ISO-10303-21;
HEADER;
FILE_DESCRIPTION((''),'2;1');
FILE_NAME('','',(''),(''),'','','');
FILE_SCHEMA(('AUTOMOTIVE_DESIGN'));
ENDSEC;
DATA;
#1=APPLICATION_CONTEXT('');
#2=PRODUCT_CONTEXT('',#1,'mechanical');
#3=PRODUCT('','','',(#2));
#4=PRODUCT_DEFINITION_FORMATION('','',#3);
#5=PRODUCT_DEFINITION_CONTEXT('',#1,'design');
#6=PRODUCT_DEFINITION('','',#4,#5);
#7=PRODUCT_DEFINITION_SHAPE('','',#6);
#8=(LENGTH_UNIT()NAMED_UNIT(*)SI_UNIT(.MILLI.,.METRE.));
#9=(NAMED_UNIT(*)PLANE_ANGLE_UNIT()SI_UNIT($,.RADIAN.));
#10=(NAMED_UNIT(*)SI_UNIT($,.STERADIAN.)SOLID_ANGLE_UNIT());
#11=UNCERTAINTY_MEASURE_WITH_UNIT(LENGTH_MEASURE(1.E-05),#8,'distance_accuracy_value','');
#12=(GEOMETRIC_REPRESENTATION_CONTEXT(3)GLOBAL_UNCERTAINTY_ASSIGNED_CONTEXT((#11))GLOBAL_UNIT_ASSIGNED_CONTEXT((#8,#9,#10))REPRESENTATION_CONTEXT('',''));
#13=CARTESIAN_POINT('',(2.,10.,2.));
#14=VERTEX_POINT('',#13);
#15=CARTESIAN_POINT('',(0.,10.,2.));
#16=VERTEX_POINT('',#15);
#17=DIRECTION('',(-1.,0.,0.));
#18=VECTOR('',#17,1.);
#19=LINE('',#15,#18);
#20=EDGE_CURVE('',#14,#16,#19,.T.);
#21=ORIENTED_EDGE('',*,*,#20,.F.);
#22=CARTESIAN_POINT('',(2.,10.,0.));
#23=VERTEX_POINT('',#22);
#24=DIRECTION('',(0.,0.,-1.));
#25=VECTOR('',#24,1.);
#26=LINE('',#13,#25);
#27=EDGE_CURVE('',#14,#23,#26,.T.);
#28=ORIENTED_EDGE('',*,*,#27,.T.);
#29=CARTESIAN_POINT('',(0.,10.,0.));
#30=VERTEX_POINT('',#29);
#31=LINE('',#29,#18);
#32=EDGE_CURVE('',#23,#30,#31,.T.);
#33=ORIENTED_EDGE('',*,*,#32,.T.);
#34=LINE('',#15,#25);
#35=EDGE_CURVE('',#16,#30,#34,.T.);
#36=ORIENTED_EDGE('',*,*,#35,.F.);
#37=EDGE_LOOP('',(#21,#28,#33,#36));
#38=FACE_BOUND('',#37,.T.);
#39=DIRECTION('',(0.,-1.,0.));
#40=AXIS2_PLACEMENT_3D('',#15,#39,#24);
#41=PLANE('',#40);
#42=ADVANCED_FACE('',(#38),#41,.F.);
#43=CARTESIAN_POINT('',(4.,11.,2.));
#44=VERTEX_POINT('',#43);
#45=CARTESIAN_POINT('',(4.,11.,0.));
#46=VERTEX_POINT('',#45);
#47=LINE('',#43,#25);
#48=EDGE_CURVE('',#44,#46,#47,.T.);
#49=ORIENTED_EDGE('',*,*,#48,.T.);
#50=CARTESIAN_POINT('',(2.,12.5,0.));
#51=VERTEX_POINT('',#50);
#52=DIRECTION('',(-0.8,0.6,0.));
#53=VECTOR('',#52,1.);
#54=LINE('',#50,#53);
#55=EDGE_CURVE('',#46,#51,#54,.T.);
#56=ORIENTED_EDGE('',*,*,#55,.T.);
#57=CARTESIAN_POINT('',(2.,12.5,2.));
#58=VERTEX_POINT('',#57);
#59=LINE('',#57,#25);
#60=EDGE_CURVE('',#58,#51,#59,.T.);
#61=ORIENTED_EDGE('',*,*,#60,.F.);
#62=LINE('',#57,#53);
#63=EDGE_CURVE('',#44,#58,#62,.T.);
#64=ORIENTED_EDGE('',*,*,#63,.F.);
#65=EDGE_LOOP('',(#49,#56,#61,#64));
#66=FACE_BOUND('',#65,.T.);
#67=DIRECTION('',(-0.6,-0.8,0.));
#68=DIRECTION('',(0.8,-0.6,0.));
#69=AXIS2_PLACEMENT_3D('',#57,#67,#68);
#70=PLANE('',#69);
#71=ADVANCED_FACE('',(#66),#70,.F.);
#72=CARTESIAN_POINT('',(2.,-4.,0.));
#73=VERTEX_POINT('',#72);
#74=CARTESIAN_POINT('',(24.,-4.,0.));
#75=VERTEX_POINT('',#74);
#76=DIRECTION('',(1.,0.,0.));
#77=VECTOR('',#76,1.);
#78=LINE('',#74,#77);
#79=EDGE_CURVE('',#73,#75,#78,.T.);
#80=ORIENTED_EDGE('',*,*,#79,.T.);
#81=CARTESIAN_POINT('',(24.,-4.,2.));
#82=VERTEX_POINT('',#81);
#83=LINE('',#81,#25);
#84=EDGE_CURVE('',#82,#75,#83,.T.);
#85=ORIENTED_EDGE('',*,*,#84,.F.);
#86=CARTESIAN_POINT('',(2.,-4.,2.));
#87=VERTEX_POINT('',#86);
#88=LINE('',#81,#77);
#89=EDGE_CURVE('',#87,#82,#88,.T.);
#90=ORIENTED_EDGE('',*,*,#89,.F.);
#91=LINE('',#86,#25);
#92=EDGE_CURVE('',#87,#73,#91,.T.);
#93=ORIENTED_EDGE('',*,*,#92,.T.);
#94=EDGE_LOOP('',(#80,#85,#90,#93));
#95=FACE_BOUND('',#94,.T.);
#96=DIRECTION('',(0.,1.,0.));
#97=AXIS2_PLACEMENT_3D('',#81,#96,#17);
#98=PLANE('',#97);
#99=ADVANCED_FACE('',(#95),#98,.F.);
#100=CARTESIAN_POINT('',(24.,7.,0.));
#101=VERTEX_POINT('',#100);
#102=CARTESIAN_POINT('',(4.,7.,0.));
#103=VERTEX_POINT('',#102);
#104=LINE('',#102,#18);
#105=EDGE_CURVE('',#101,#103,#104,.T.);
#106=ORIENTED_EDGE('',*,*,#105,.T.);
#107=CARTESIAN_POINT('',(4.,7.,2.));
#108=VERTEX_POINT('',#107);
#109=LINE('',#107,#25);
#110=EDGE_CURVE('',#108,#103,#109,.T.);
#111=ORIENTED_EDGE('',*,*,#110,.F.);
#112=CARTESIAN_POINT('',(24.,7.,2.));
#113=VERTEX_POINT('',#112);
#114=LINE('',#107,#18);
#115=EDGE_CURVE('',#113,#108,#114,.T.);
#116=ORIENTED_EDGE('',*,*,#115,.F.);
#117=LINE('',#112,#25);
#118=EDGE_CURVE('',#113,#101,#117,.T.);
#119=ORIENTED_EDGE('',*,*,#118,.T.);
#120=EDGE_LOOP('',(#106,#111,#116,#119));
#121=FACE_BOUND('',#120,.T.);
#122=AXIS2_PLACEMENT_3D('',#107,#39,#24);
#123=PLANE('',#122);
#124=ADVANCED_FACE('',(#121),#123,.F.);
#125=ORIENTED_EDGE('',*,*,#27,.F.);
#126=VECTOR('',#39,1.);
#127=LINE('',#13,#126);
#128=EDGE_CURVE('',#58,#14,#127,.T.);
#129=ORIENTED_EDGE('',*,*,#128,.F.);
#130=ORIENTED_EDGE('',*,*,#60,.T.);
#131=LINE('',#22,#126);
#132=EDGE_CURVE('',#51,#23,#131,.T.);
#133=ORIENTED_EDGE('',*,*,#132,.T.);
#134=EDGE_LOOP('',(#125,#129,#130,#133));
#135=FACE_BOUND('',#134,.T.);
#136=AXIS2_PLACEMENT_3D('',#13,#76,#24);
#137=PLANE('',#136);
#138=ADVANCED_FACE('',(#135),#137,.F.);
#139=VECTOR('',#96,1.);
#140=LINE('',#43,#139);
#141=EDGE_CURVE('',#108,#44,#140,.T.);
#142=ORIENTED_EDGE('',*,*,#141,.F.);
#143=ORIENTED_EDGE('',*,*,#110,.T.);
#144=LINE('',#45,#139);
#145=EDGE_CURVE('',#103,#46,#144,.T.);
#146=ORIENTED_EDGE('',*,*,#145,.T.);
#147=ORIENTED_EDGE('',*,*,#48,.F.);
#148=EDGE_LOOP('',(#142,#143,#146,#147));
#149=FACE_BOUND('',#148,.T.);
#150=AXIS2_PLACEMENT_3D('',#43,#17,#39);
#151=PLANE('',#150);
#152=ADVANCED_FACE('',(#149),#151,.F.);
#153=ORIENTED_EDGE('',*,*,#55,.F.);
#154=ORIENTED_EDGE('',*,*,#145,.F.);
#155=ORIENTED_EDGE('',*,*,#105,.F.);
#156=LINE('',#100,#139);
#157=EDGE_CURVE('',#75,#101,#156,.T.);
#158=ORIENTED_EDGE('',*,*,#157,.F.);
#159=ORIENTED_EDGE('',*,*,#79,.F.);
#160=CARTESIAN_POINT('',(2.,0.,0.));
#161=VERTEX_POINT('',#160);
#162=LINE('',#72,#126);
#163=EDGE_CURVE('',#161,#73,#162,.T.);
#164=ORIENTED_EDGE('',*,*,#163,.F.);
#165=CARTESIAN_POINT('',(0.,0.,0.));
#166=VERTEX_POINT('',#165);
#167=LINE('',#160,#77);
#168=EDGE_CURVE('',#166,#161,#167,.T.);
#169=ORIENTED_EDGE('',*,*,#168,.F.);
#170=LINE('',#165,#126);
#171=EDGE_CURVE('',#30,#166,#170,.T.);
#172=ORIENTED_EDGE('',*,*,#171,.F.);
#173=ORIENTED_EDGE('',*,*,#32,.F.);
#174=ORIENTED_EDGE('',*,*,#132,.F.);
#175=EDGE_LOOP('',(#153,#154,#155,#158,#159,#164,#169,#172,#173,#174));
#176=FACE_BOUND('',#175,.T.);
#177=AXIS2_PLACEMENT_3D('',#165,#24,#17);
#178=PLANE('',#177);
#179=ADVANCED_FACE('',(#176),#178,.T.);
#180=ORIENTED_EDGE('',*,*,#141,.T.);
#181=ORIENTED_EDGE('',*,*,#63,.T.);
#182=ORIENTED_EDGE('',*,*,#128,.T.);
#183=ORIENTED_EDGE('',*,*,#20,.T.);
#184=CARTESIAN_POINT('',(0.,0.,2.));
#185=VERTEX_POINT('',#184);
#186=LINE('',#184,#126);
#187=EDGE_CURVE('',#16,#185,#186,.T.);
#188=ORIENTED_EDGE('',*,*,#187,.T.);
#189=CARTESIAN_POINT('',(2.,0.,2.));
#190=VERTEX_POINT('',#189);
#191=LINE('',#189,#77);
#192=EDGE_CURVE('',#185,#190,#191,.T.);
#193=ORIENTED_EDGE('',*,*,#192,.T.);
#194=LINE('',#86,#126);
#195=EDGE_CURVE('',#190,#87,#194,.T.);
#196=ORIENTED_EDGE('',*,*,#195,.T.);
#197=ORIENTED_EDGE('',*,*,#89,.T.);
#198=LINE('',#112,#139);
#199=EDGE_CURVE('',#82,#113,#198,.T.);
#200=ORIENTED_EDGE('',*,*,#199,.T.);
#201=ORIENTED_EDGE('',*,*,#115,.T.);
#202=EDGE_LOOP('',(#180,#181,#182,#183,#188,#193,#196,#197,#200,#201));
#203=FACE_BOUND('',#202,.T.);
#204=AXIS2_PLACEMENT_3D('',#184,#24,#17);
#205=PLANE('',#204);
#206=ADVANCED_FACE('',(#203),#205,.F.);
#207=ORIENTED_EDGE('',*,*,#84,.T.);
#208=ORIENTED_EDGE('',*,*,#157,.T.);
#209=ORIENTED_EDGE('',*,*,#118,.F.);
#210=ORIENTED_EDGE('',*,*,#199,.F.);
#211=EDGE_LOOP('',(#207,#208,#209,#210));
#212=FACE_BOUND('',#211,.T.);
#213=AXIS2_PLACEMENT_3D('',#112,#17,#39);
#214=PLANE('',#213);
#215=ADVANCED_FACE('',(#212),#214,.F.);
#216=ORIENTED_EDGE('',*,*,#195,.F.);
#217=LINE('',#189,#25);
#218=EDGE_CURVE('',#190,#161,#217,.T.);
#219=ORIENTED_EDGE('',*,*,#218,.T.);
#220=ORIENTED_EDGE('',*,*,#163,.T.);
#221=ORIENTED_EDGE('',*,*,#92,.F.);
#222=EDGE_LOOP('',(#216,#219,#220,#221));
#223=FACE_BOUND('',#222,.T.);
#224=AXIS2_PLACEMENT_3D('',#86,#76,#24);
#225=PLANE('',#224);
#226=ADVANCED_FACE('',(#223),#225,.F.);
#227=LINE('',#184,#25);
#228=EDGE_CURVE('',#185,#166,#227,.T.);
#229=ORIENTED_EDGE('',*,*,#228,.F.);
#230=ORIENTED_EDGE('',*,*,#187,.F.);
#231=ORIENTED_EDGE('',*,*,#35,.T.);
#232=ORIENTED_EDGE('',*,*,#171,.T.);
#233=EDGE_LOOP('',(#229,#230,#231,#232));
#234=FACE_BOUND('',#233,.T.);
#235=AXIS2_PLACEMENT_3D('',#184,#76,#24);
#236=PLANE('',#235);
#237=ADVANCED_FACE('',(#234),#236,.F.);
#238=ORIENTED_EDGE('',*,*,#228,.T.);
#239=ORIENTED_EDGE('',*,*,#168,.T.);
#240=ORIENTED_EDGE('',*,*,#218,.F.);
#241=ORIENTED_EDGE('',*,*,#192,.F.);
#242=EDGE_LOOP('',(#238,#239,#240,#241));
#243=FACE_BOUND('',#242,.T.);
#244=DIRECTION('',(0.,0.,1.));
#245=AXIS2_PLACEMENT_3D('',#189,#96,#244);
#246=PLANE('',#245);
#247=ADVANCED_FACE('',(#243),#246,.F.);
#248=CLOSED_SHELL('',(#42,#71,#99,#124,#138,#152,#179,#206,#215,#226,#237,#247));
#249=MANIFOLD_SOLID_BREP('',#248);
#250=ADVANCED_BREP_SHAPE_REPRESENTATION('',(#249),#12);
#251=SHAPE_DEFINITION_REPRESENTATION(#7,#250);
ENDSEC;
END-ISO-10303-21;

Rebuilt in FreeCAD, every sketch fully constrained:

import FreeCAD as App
import Part
import Sketcher
Q = App.Units.Quantity


def add_polygon(sketch, points):
    """Adds a closed chain of lines whose ends are joined by coincident constraints."""
    first, n = sketch.GeometryCount, len(points)
    for a, b in zip(points, points[1:] + points[:1]):
        sketch.addGeometry(Part.LineSegment(App.Vector(*a, 0), App.Vector(*b, 0)), False)
    for i in range(n):
        sketch.addConstraint(Sketcher.Constraint("Coincident", first + i, 2, first + (i + 1) % n, 1))

doc = App.newDocument("Part")
params = doc.addObject("Spreadsheet::Sheet", "Params")
for row, (alias, value) in enumerate([
    ("sketch1_width", "2 mm"),
    ("sketch1_width2", "22 mm"),
    ("sketch1_width3", "20 mm"),
    ("sketch1_height", "10 mm"),
    ("sketch1_height2", "4 mm"),
    ("pad1_length", "2 mm"),
], start=1):
    params.set(f"A{row}", alias)
    params.set(f"B{row}", "=" + value)
    params.setAlias(f"B{row}", alias)

body = doc.addObject("PartDesign::Body", "Body")

# Sketch on XY plane
sketch1 = doc.addObject("Sketcher::SketchObject", "Sketch")
body.addObject(sketch1)
sketch1.AttachmentSupport = (doc.XY_Plane, [""])
sketch1.MapMode = "FlatFace"
add_polygon(sketch1, [(0, 10), (0, 0), (2, 0), (2, -4), (24, -4), (24, 7), (4, 7), (4, 11), (2, 12.5), (2, 10)])  # lines 0-9
sketch1.addConstraint([
    Sketcher.Constraint("Vertical", 0),
    Sketcher.Constraint("Horizontal", 1),
    Sketcher.Constraint("Vertical", 2),
    Sketcher.Constraint("Horizontal", 3),
    Sketcher.Constraint("Vertical", 4),
    Sketcher.Constraint("Horizontal", 5),
    Sketcher.Constraint("Vertical", 6),
    Sketcher.Constraint("Vertical", 8),
    Sketcher.Constraint("Horizontal", 9),
    Sketcher.Constraint("Coincident", 0, 2, -1, 1),
    Sketcher.Constraint("Vertical", 2, 2, 7, 2),
    Sketcher.Constraint("Equal", 2, 6),
    Sketcher.Constraint("DistanceX", 1, 1, 1, 2, Q("2 mm")),
    Sketcher.Constraint("DistanceX", 3, 1, 3, 2, Q("22 mm")),
    Sketcher.Constraint("DistanceX", 5, 2, 5, 1, Q("20 mm")),
    Sketcher.Constraint("DistanceY", 0, 2, 0, 1, Q("10 mm")),
    Sketcher.Constraint("DistanceY", 2, 2, 2, 1, Q("4 mm")),
    Sketcher.Constraint("DistanceY", 4, 1, 4, 2, Q("11 mm")),
    Sketcher.Constraint("DistanceY", 8, 2, 8, 1, Q("2.5 mm")),
])
sketch1.setExpression("Constraints[22]", "Params.sketch1_width")
sketch1.setExpression("Constraints[23]", "Params.sketch1_width2")
sketch1.setExpression("Constraints[24]", "Params.sketch1_width3")
sketch1.setExpression("Constraints[25]", "Params.sketch1_height")
sketch1.setExpression("Constraints[26]", "Params.sketch1_height2")
pad1 = doc.addObject("PartDesign::Pad", "Pad")
body.addObject(pad1)
pad1.Profile = sketch1
pad1.setExpression("Length", "Params.pad1_length")

doc.recompute()
